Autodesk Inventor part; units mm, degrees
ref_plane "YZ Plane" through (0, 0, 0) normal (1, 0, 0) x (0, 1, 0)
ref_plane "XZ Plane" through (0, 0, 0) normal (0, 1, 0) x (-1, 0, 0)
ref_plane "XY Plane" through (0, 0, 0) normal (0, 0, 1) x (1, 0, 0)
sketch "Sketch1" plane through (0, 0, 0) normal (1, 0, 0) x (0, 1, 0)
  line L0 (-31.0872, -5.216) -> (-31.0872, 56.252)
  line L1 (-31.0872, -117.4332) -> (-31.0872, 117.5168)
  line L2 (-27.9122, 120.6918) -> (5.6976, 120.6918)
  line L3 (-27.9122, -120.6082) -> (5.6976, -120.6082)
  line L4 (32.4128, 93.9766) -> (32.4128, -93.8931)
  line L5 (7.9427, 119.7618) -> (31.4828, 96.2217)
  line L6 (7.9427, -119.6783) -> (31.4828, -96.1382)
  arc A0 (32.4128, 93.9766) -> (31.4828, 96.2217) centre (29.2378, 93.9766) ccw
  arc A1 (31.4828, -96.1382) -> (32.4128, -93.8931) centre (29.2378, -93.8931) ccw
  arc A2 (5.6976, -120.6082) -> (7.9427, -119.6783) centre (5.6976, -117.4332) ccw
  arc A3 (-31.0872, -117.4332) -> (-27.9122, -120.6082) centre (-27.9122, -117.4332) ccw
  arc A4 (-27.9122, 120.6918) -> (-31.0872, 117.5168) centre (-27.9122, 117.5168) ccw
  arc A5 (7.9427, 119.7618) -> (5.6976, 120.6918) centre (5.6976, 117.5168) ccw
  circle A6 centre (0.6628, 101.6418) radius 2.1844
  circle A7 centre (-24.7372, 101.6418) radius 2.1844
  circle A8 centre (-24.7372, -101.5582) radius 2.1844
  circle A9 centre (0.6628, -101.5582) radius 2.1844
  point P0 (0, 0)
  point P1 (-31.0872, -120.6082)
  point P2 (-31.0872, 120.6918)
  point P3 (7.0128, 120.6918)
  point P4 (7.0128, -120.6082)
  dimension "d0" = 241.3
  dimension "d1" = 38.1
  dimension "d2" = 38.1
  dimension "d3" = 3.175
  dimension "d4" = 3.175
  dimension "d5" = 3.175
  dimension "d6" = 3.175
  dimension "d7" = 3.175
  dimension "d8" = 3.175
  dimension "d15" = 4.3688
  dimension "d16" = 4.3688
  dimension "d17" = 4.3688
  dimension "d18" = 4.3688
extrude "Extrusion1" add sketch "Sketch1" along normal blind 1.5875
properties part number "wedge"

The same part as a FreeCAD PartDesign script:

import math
import FreeCAD as App
import Part
import Sketcher

V = App.Vector
Q = App.Units.Quantity

doc = App.newDocument("Part")
params = doc.addObject("Spreadsheet::Sheet", "Params")
for row, (alias, value) in enumerate([
    ("sketch1_diameter", "0.172 in"),
    ("sketch1_radius", "0.125 in"),
    ("sketch1_height", "9.25 in"),
    ("pad1_length", "0.0625 in"),
], start=1):
    params.set(f"A{row}", alias)
    params.set(f"B{row}", "=" + value)
    params.setAlias(f"B{row}", alias)

body = doc.addObject("PartDesign::Body", "Body")

sketch1 = body.newObject("Sketcher::SketchObject", "Sketch")
sketch1.AttachmentSupport = (doc.getObject("YZ_Plane"), [""])
sketch1.MapMode = "FlatFace"
sketch1.addGeometry(Part.LineSegment(V(-31.1, 117.5, 0), V(-31.1, -117.4, 0)), False)
sketch1.addGeometry(Part.ArcOfCircle(Part.Circle(V(-27.9, -117.4, 0), V(0, 0, 1), 3.2), math.radians(180), math.radians(270)), False)
sketch1.addGeometry(Part.LineSegment(V(-27.9, -120.6, 0), V(5.7, -120.6, 0)), False)
sketch1.addGeometry(Part.ArcOfCircle(Part.Circle(V(5.7, -117.4, 0), V(0, 0, 1), 3.2), math.radians(-90), math.radians(-45)), False)
sketch1.addGeometry(Part.LineSegment(V(7.9, -119.7, 0), V(31.5, -96.1, 0)), False)
sketch1.addGeometry(Part.ArcOfCircle(Part.Circle(V(29.2, -93.9, 0), V(0, 0, 1), 3.2), math.radians(-45), math.radians(0)), False)
sketch1.addGeometry(Part.LineSegment(V(32.4, -93.9, 0), V(32.4, 94, 0)), False)
sketch1.addGeometry(Part.ArcOfCircle(Part.Circle(V(29.2, 94, 0), V(0, 0, 1), 3.2), math.radians(0), math.radians(45)), False)
sketch1.addGeometry(Part.LineSegment(V(31.5, 96.2, 0), V(7.9, 119.8, 0)), False)
sketch1.addGeometry(Part.ArcOfCircle(Part.Circle(V(5.7, 117.5, 0), V(0, 0, 1), 3.2), math.radians(45), math.radians(90)), False)
sketch1.addGeometry(Part.LineSegment(V(5.7, 120.7, 0), V(-27.9, 120.7, 0)), False)
sketch1.addGeometry(Part.ArcOfCircle(Part.Circle(V(-27.9, 117.5, 0), V(0, 0, 1), 3.2), math.radians(90), math.radians(180)), False)
sketch1.addGeometry(Part.Circle(V(-24.7, -101.6, 0), V(0, 0, 1), 2.2), False)
sketch1.addGeometry(Part.Circle(V(0.7, -101.6, 0), V(0, 0, 1), 2.2), False)
sketch1.addGeometry(Part.Circle(V(-24.7, 101.6, 0), V(0, 0, 1), 2.2), False)
sketch1.addGeometry(Part.Circle(V(0.7, 101.6, 0), V(0, 0, 1), 2.2), False)
sketch1.addConstraint(Sketcher.Constraint("Tangent", 0, 2, 1, 1))
sketch1.addConstraint(Sketcher.Constraint("Tangent", 1, 2, 2, 1))
sketch1.addConstraint(Sketcher.Constraint("Tangent", 2, 2, 3, 1))
sketch1.addConstraint(Sketcher.Constraint("Tangent", 3, 2, 4, 1))
sketch1.addConstraint(Sketcher.Constraint("Tangent", 4, 2, 5, 1))
sketch1.addConstraint(Sketcher.Constraint("Tangent", 5, 2, 6, 1))
sketch1.addConstraint(Sketcher.Constraint("Tangent", 6, 2, 7, 1))
sketch1.addConstraint(Sketcher.Constraint("Tangent", 7, 2, 8, 1))
sketch1.addConstraint(Sketcher.Constraint("Tangent", 8, 2, 9, 1))
sketch1.addConstraint(Sketcher.Constraint("Tangent", 9, 2, 10, 1))
sketch1.addConstraint(Sketcher.Constraint("Tangent", 10, 2, 11, 1))
sketch1.addConstraint(Sketcher.Constraint("Tangent", 11, 2, 0, 1))
sketch1.addConstraint(Sketcher.Constraint("Vertical", 0))
sketch1.addConstraint(Sketcher.Constraint("Horizontal", 2))
sketch1.addConstraint(Sketcher.Constraint("Vertical", 6))
sketch1.addConstraint(Sketcher.Constraint("Horizontal", 10))
sketch1.addConstraint(Sketcher.Constraint("Equal", 1, 3))
sketch1.addConstraint(Sketcher.Constraint("Equal", 3, 5))
sketch1.addConstraint(Sketcher.Constraint("Equal", 5, 7))
sketch1.addConstraint(Sketcher.Constraint("Equal", 7, 9))
sketch1.addConstraint(Sketcher.Constraint("Equal", 9, 11))
sketch1.addConstraint(Sketcher.Constraint("Equal", 12, 13))
sketch1.addConstraint(Sketcher.Constraint("Equal", 13, 14))
sketch1.addConstraint(Sketcher.Constraint("Equal", 14, 15))
sketch1.addConstraint(Sketcher.Constraint("Perpendicular", 4, 8))
sketch1.addConstraint(Sketcher.Constraint("Horizontal", 12, 3, 13, 3))
sketch1.addConstraint(Sketcher.Constraint("Horizontal", 14, 3, 15, 3))
sketch1.addConstraint(Sketcher.Constraint("Vertical", 3, 3, 9, 3))
sketch1.addConstraint(Sketcher.Constraint("Vertical", 12, 3, 14, 3))
sketch1.addConstraint(Sketcher.Constraint("Vertical", 13, 3, 15, 3))
sketch1.addConstraint(Sketcher.Constraint("Vertical", 4, 2, 7, 2))
sketch1.addConstraint(Sketcher.Constraint("Diameter", 12, Q("0.172 in")))
sketch1.addConstraint(Sketcher.Constraint("Radius", 1, Q("0.125 in")))
sketch1.addConstraint(Sketcher.Constraint("DistanceX", 1, 3, 12, 3, Q("0.125 in")))
sketch1.addConstraint(Sketcher.Constraint("DistanceX", 12, 3, 13, 3, Q("1 in")))
sketch1.addConstraint(Sketcher.Constraint("DistanceY", 12, 3, 14, 3, Q("8 in")))
sketch1.addConstraint(Sketcher.Constraint("DistanceY", 0, 2, 0, 1, Q("9.25 in")))
sketch1.addConstraint(Sketcher.Constraint("DistanceX", 1, 3, 5, 3, Q("2.25 in")))
sketch1.addConstraint(Sketcher.Constraint("DistanceY", 1, 2, 12, 3, Q("0.75 in")))
sketch1.addConstraint(Sketcher.Constraint("DistanceX", 2, 1, 2, 2, 33.6098))
sketch1.addConstraint(Sketcher.Constraint("DistanceX", 1, 3, -1, 1, Q("1.0989 in")))
sketch1.addConstraint(Sketcher.Constraint("DistanceY", 1, 3, -1, 1, 117.4332))
sketch1.setExpression("Constraints[31]", "Params.sketch1_diameter")
sketch1.setExpression("Constraints[32]", "Params.sketch1_radius")
sketch1.setExpression("Constraints[36]", "Params.sketch1_height")
pad1 = body.newObject("PartDesign::Pad", "Pad")
pad1.Profile = sketch1
pad1.setExpression("Length", "Params.pad1_length")

doc.recompute()
